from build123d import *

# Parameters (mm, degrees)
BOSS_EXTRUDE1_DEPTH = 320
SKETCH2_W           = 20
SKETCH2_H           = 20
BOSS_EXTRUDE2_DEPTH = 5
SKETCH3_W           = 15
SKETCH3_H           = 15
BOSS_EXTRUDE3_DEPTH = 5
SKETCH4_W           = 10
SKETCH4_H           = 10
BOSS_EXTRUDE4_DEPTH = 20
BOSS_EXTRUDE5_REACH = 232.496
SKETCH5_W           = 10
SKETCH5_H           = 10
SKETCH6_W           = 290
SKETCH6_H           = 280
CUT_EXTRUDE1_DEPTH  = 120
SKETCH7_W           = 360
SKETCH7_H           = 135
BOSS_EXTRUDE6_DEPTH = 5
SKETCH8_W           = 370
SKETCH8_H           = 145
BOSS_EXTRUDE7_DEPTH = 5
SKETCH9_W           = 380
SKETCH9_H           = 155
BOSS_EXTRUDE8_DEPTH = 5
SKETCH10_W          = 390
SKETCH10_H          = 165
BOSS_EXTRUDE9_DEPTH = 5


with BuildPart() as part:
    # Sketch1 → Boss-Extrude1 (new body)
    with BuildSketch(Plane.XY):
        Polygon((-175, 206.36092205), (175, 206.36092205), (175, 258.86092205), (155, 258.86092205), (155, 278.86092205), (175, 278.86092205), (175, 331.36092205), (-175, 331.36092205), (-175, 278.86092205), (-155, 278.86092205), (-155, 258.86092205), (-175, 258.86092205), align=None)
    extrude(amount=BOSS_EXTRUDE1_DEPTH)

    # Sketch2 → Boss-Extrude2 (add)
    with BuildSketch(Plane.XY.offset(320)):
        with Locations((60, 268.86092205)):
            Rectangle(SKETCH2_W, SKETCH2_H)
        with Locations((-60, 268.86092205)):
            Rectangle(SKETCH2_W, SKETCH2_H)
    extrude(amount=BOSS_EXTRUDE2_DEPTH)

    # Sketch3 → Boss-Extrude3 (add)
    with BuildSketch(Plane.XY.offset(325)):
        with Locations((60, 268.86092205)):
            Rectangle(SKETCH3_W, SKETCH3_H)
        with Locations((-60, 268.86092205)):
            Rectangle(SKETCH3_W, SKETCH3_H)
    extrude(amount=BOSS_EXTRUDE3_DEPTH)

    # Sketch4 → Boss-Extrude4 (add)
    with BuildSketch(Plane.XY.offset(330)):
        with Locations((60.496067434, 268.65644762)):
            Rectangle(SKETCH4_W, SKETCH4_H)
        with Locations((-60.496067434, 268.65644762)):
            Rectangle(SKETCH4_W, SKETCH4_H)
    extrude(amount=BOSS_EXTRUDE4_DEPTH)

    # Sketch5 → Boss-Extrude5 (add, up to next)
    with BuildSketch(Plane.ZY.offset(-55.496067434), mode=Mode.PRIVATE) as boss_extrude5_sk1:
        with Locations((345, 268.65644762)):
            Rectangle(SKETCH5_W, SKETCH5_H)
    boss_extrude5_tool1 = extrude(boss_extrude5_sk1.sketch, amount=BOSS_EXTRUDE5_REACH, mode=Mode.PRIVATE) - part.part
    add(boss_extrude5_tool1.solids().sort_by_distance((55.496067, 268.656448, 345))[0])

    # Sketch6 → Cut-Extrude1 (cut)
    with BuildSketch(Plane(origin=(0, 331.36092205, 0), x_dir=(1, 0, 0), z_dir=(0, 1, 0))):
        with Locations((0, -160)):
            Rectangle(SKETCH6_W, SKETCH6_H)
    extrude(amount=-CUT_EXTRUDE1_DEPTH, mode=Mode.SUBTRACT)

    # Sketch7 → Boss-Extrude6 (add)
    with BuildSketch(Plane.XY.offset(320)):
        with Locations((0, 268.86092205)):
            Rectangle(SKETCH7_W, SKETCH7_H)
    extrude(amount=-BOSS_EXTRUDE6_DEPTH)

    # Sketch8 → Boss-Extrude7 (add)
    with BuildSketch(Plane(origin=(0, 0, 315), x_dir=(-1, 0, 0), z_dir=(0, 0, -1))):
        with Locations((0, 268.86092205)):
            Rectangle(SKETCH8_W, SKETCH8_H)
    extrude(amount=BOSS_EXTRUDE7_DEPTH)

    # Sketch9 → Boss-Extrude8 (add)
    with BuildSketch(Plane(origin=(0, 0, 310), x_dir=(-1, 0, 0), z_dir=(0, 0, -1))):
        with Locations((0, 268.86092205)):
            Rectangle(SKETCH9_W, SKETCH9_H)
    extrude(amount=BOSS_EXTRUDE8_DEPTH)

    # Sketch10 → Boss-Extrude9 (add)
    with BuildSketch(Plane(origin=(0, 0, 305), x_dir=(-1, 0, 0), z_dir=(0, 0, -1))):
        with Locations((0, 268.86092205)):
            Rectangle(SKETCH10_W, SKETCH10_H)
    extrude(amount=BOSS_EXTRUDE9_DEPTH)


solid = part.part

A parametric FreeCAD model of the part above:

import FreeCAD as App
import Part
import Sketcher

doc = App.newDocument("Part")
body = doc.addObject("PartDesign::Body", "Body")

# Sketch on XY plane
sketch1 = body.newObject("Sketcher::SketchObject", "Sketch")
sketch1.AttachmentSupport = (doc.getObject("XY_Plane"), [""])
sketch1.MapMode = "FlatFace"
sketch1.addGeometry(Part.LineSegment(App.Vector(-175, 206.360922, 0), App.Vector(175, 206.360922, 0)), False)
sketch1.addGeometry(Part.LineSegment(App.Vector(175, 206.360922, 0), App.Vector(175, 258.860922, 0)), False)
sketch1.addGeometry(Part.LineSegment(App.Vector(175, 258.860922, 0), App.Vector(155, 258.860922, 0)), False)
sketch1.addGeometry(Part.LineSegment(App.Vector(155, 258.860922, 0), App.Vector(155, 278.860922, 0)), False)
sketch1.addGeometry(Part.LineSegment(App.Vector(155, 278.860922, 0), App.Vector(175, 278.860922, 0)), False)
sketch1.addGeometry(Part.LineSegment(App.Vector(175, 278.860922, 0), App.Vector(175, 331.360922, 0)), False)
sketch1.addGeometry(Part.LineSegment(App.Vector(175, 331.360922, 0), App.Vector(-175, 331.360922, 0)), False)
sketch1.addGeometry(Part.LineSegment(App.Vector(-175, 331.360922, 0), App.Vector(-175, 278.860922, 0)), False)
sketch1.addGeometry(Part.LineSegment(App.Vector(-175, 278.860922, 0), App.Vector(-155, 278.860922, 0)), False)
sketch1.addGeometry(Part.LineSegment(App.Vector(-155, 278.860922, 0), App.Vector(-155, 258.860922, 0)), False)
sketch1.addGeometry(Part.LineSegment(App.Vector(-155, 258.860922, 0), App.Vector(-175, 258.860922, 0)), False)
sketch1.addGeometry(Part.LineSegment(App.Vector(-175, 258.860922, 0), App.Vector(-175, 206.360922, 0)), False)
sketch1.addConstraint(Sketcher.Constraint("Coincident", 0, 2, 1, 1))
sketch1.addConstraint(Sketcher.Constraint("Coincident", 1, 2, 2, 1))
sketch1.addConstraint(Sketcher.Constraint("Coincident", 2, 2, 3, 1))
sketch1.addConstraint(Sketcher.Constraint("Coincident", 3, 2, 4, 1))
sketch1.addConstraint(Sketcher.Constraint("Coincident", 4, 2, 5, 1))
sketch1.addConstraint(Sketcher.Constraint("Coincident", 5, 2, 6, 1))
sketch1.addConstraint(Sketcher.Constraint("Coincident", 6, 2, 7, 1))
sketch1.addConstraint(Sketcher.Constraint("Coincident", 7, 2, 8, 1))
sketch1.addConstraint(Sketcher.Constraint("Coincident", 8, 2, 9, 1))
sketch1.addConstraint(Sketcher.Constraint("Coincident", 9, 2, 10, 1))
sketch1.addConstraint(Sketcher.Constraint("Coincident", 10, 2, 11, 1))
sketch1.addConstraint(Sketcher.Constraint("Coincident", 11, 2, 0, 1))
sketch1.addConstraint(Sketcher.Constraint("Horizontal", 0))
sketch1.addConstraint(Sketcher.Constraint("Vertical", 1))
sketch1.addConstraint(Sketcher.Constraint("Horizontal", 2))
sketch1.addConstraint(Sketcher.Constraint("Vertical", 3))
sketch1.addConstraint(Sketcher.Constraint("Horizontal", 4))
sketch1.addConstraint(Sketcher.Constraint("Vertical", 5))
sketch1.addConstraint(Sketcher.Constraint("Horizontal", 6))
sketch1.addConstraint(Sketcher.Constraint("Vertical", 7))
sketch1.addConstraint(Sketcher.Constraint("Horizontal", 8))
sketch1.addConstraint(Sketcher.Constraint("Vertical", 9))
sketch1.addConstraint(Sketcher.Constraint("Horizontal", 10))
sketch1.addConstraint(Sketcher.Constraint("Vertical", 11))
sketch1.addConstraint(Sketcher.Constraint("Symmetric", 4, 2, 7, 2, -2))
sketch1.addConstraint(Sketcher.Constraint("Symmetric", 2, 2, 9, 2, -2))
sketch1.addConstraint(Sketcher.Constraint("Vertical", 1, 2, 4, 2))
sketch1.addConstraint(Sketcher.Constraint("Vertical", 7, 2, 10, 2))
sketch1.addConstraint(Sketcher.Constraint("Equal", 10, 3))
sketch1.addConstraint(Sketcher.Constraint("Equal", 1, 5))
sketch1.addConstraint(Sketcher.Constraint("DistanceX", 0, 1, 0, 2, 350.0))
sketch1.addConstraint(Sketcher.Constraint("DistanceX", 2, 2, 2, 1, 20.0))
sketch1.addConstraint(Sketcher.Constraint("DistanceY", 1, 1, 1, 2, 52.5))
sketch1.addConstraint(Sketcher.Constraint("DistanceY", -1, 1, 0, 2, 206.360922))
pad1 = body.newObject("PartDesign::Pad", "Pad")
pad1.Profile = sketch1
pad1.Length = 320

# Sketch on XY plane
sketch2 = body.newObject("Sketcher::SketchObject", "Sketch001")
sketch2.AttachmentSupport = (doc.getObject("XY_Plane"), [""])
sketch2.MapMode = "FlatFace"
sketch2.AttachmentOffset = App.Placement(App.Vector(0, 0, 320), App.Rotation())
sketch2.addGeometry(Part.LineSegment(App.Vector(50, 278.860922, 0), App.Vector(50, 258.860922, 0)), False)
sketch2.addGeometry(Part.LineSegment(App.Vector(50, 258.860922, 0), App.Vector(70, 258.860922, 0)), False)
sketch2.addGeometry(Part.LineSegment(App.Vector(70, 258.860922, 0), App.Vector(70, 278.860922, 0)), False)
sketch2.addGeometry(Part.LineSegment(App.Vector(70, 278.860922, 0), App.Vector(50, 278.860922, 0)), False)
sketch2.addGeometry(Part.LineSegment(App.Vector(-70, 278.860922, 0), App.Vector(-70, 258.860922, 0)), False)
sketch2.addGeometry(Part.LineSegment(App.Vector(-70, 258.860922, 0), App.Vector(-50, 258.860922, 0)), False)
sketch2.addGeometry(Part.LineSegment(App.Vector(-50, 258.860922, 0), App.Vector(-50, 278.860922, 0)), False)
sketch2.addGeometry(Part.LineSegment(App.Vector(-50, 278.860922, 0), App.Vector(-70, 278.860922, 0)), False)
sketch2.addConstraint(Sketcher.Constraint("Coincident", 0, 2, 1, 1))
sketch2.addConstraint(Sketcher.Constraint("Coincident", 1, 2, 2, 1))
sketch2.addConstraint(Sketcher.Constraint("Coincident", 2, 2, 3, 1))
sketch2.addConstraint(Sketcher.Constraint("Coincident", 3, 2, 0, 1))
sketch2.addConstraint(Sketcher.Constraint("Coincident", 4, 2, 5, 1))
sketch2.addConstraint(Sketcher.Constraint("Coincident", 5, 2, 6, 1))
sketch2.addConstraint(Sketcher.Constraint("Coincident", 6, 2, 7, 1))
sketch2.addConstraint(Sketcher.Constraint("Coincident", 7, 2, 4, 1))
sketch2.addConstraint(Sketcher.Constraint("Vertical", 0))
sketch2.addConstraint(Sketcher.Constraint("Horizontal", 1))
sketch2.addConstraint(Sketcher.Constraint("Vertical", 2))
sketch2.addConstraint(Sketcher.Constraint("Horizontal", 3))
sketch2.addConstraint(Sketcher.Constraint("Vertical", 4))
sketch2.addConstraint(Sketcher.Constraint("Horizontal", 5))
sketch2.addConstraint(Sketcher.Constraint("Vertical", 6))
sketch2.addConstraint(Sketcher.Constraint("Horizontal", 7))
sketch2.addConstraint(Sketcher.Constraint("Symmetric", 1, 2, 4, 2, -2))
sketch2.addConstraint(Sketcher.Constraint("Symmetric", 3, 2, 6, 2, -2))
sketch2.addConstraint(Sketcher.Constraint("Equal", 7, 0))
sketch2.addConstraint(Sketcher.Constraint("DistanceX", 1, 1, 1, 2, 20.0))
sketch2.addConstraint(Sketcher.Constraint("DistanceX", -1, 1, 0, 2, 50.0))
sketch2.addConstraint(Sketcher.Constraint("DistanceY", -1, 1, 0, 2, 258.860922))
pad2 = body.newObject("PartDesign::Pad", "Pad001")
pad2.Profile = sketch2
pad2.Length = 5

# Sketch on XY plane
sketch3 = body.newObject("Sketcher::SketchObject", "Sketch002")
sketch3.AttachmentSupport = (doc.getObject("XY_Plane"), [""])
sketch3.MapMode = "FlatFace"
sketch3.AttachmentOffset = App.Placement(App.Vector(0, 0, 325), App.Rotation())
sketch3.addGeometry(Part.LineSegment(App.Vector(52.5, 276.360922, 0), App.Vector(52.5, 261.360922, 0)), False)
sketch3.addGeometry(Part.LineSegment(App.Vector(52.5, 261.360922, 0), App.Vector(67.5, 261.360922, 0)), False)
sketch3.addGeometry(Part.LineSegment(App.Vector(67.5, 261.360922, 0), App.Vector(67.5, 276.360922, 0)), False)
sketch3.addGeometry(Part.LineSegment(App.Vector(67.5, 276.360922, 0), App.Vector(52.5, 276.360922, 0)), False)
sketch3.addGeometry(Part.LineSegment(App.Vector(-67.5, 276.360922, 0), App.Vector(-67.5, 261.360922, 0)), False)
sketch3.addGeometry(Part.LineSegment(App.Vector(-67.5, 261.360922, 0), App.Vector(-52.5, 261.360922, 0)), False)
sketch3.addGeometry(Part.LineSegment(App.Vector(-52.5, 261.360922, 0), App.Vector(-52.5, 276.360922, 0)), False)
sketch3.addGeometry(Part.LineSegment(App.Vector(-52.5, 276.360922, 0), App.Vector(-67.5, 276.360922, 0)), False)
sketch3.addConstraint(Sketcher.Constraint("Coincident", 0, 2, 1, 1))
sketch3.addConstraint(Sketcher.Constraint("Coincident", 1, 2, 2, 1))
sketch3.addConstraint(Sketcher.Constraint("Coincident", 2, 2, 3, 1))
sketch3.addConstraint(Sketcher.Constraint("Coincident", 3, 2, 0, 1))
sketch3.addConstraint(Sketcher.Constraint("Coincident", 4, 2, 5, 1))
sketch3.addConstraint(Sketcher.Constraint("Coincident", 5, 2, 6, 1))
sketch3.addConstraint(Sketcher.Constraint("Coincident", 6, 2, 7, 1))
sketch3.addConstraint(Sketcher.Constraint("Coincident", 7, 2, 4, 1))
sketch3.addConstraint(Sketcher.Constraint("Vertical", 0))
sketch3.addConstraint(Sketcher.Constraint("Horizontal", 1))
sketch3.addConstraint(Sketcher.Constraint("Vertical", 2))
sketch3.addConstraint(Sketcher.Constraint("Horizontal", 3))
sketch3.addConstraint(Sketcher.Constraint("Vertical", 4))
sketch3.addConstraint(Sketcher.Constraint("Horizontal", 5))
sketch3.addConstraint(Sketcher.Constraint("Vertical", 6))
sketch3.addConstraint(Sketcher.Constraint("Horizontal", 7))
sketch3.addConstraint(Sketcher.Constraint("Symmetric", 1, 2, 4, 2, -2))
sketch3.addConstraint(Sketcher.Constraint("Symmetric", 3, 2, 6, 2, -2))
sketch3.addConstraint(Sketcher.Constraint("Equal", 7, 0))
sketch3.addConstraint(Sketcher.Constraint("DistanceX", 1, 1, 1, 2, 15.0))
sketch3.addConstraint(Sketcher.Constraint("DistanceX", 4, 2, 0, 2, 120.0))
sketch3.addConstraint(Sketcher.Constraint("DistanceY", -1, 1, 0, 2, 261.360922))
pad3 = body.newObject("PartDesign::Pad", "Pad002")
pad3.Profile = sketch3
pad3.Length = 5

# Sketch on XY plane
sketch4 = body.newObject("Sketcher::SketchObject", "Sketch003")
sketch4.AttachmentSupport = (doc.getObject("XY_Plane"), [""])
sketch4.MapMode = "FlatFace"
sketch4.AttachmentOffset = App.Placement(App.Vector(0, 0, 330), App.Rotation())
sketch4.addGeometry(Part.LineSegment(App.Vector(55.496067, 273.656448, 0), App.Vector(55.496067, 263.656448, 0)), False)
sketch4.addGeometry(Part.LineSegment(App.Vector(55.496067, 263.656448, 0), App.Vector(65.496067, 263.656448, 0)), False)
sketch4.addGeometry(Part.LineSegment(App.Vector(65.496067, 263.656448, 0), App.Vector(65.496067, 273.656448, 0)), False)
sketch4.addGeometry(Part.LineSegment(App.Vector(65.496067, 273.656448, 0), App.Vector(55.496067, 273.656448, 0)), False)
sketch4.addGeometry(Part.LineSegment(App.Vector(-65.496067, 273.656448, 0), App.Vector(-65.496067, 263.656448, 0)), False)
sketch4.addGeometry(Part.LineSegment(App.Vector(-65.496067, 263.656448, 0), App.Vector(-55.496067, 263.656448, 0)), False)
sketch4.addGeometry(Part.LineSegment(App.Vector(-55.496067, 263.656448, 0), App.Vector(-55.496067, 273.656448, 0)), False)
sketch4.addGeometry(Part.LineSegment(App.Vector(-55.496067, 273.656448, 0), App.Vector(-65.496067, 273.656448, 0)), False)
sketch4.addConstraint(Sketcher.Constraint("Coincident", 0, 2, 1, 1))
sketch4.addConstraint(Sketcher.Constraint("Coincident", 1, 2, 2, 1))
sketch4.addConstraint(Sketcher.Constraint("Coincident", 2, 2, 3, 1))
sketch4.addConstraint(Sketcher.Constraint("Coincident", 3, 2, 0, 1))
sketch4.addConstraint(Sketcher.Constraint("Coincident", 4, 2, 5, 1))
sketch4.addConstraint(Sketcher.Constraint("Coincident", 5, 2, 6, 1))
sketch4.addConstraint(Sketcher.Constraint("Coincident", 6, 2, 7, 1))
sketch4.addConstraint(Sketcher.Constraint("Coincident", 7, 2, 4, 1))
sketch4.addConstraint(Sketcher.Constraint("Vertical", 0))
sketch4.addConstraint(Sketcher.Constraint("Horizontal", 1))
sketch4.addConstraint(Sketcher.Constraint("Vertical", 2))
sketch4.addConstraint(Sketcher.Constraint("Horizontal", 3))
sketch4.addConstraint(Sketcher.Constraint("Vertical", 4))
sketch4.addConstraint(Sketcher.Constraint("Horizontal", 5))
sketch4.addConstraint(Sketcher.Constraint("Vertical", 6))
sketch4.addConstraint(Sketcher.Constraint("Horizontal", 7))
sketch4.addConstraint(Sketcher.Constraint("Symmetric", 1, 2, 4, 2, -2))
sketch4.addConstraint(Sketcher.Constraint("Symmetric", 3, 2, 6, 2, -2))
sketch4.addConstraint(Sketcher.Constraint("Equal", 7, 0))
sketch4.addConstraint(Sketcher.Constraint("DistanceX", 1, 1, 1, 2, 10.0))
sketch4.addConstraint(Sketcher.Constraint("DistanceX", -1, 1, 0, 2, 55.496067))
sketch4.addConstraint(Sketcher.Constraint("DistanceY", -1, 1, 0, 2, 263.656448))
pad4 = body.newObject("PartDesign::Pad", "Pad003")
pad4.Profile = sketch4
pad4.Length = 20

# Sketch on YZ plane
sketch5 = body.newObject("Sketcher::SketchObject", "Sketch004")
sketch5.AttachmentSupport = (doc.getObject("YZ_Plane"), [""])
sketch5.MapMode = "FlatFace"
sketch5.AttachmentOffset = App.Placement(App.Vector(0, 0, 55.496067), App.Rotation())
sketch5.addGeometry(Part.LineSegment(App.Vector(273.656448, 340, 0), App.Vector(263.656448, 340, 0)), False)
sketch5.addGeometry(Part.LineSegment(App.Vector(263.656448, 340, 0), App.Vector(263.656448, 350, 0)), False)
sketch5.addGeometry(Part.LineSegment(App.Vector(263.656448, 350, 0), App.Vector(273.656448, 350, 0)), False)
sketch5.addGeometry(Part.LineSegment(App.Vector(273.656448, 350, 0), App.Vector(273.656448, 340, 0)), False)
sketch5.addConstraint(Sketcher.Constraint("Coincident", 0, 2, 1, 1))
sketch5.addConstraint(Sketcher.Constraint("Coincident", 1, 2, 2, 1))
sketch5.addConstraint(Sketcher.Constraint("Coincident", 2, 2, 3, 1))
sketch5.addConstraint(Sketcher.Constraint("Coincident", 3, 2, 0, 1))
sketch5.addConstraint(Sketcher.Constraint("Horizontal", 0))
sketch5.addConstraint(Sketcher.Constraint("Vertical", 1))
sketch5.addConstraint(Sketcher.Constraint("Horizontal", 2))
sketch5.addConstraint(Sketcher.Constraint("Vertical", 3))
sketch5.addConstraint(Sketcher.Constraint("Equal", 2, 1))
sketch5.addConstraint(Sketcher.Constraint("DistanceX", 0, 2, 0, 1, 10.0))
sketch5.addConstraint(Sketcher.Constraint("DistanceY", -1, 1, 0, 2, 340.0))
sketch5.addConstraint(Sketcher.Constraint("DistanceX", -1, 1, 0, 2, 263.656448))
pad5 = body.newObject("PartDesign::Pad", "Pad004")
pad5.Profile = sketch5
pad5.Type = "UpToFirst"
pad5.Reversed = True

# Sketch on XZ plane
sketch6 = body.newObject("Sketcher::SketchObject", "Sketch005")
sketch6.AttachmentSupport = (doc.getObject("XZ_Plane"), [""])
sketch6.MapMode = "FlatFace"
sketch6.AttachmentOffset = App.Placement(App.Vector(0, 0, -331.360922), App.Rotation())
sketch6.addGeometry(Part.LineSegment(App.Vector(-145, 20, 0), App.Vector(-145, 300, 0)), False)
sketch6.addGeometry(Part.LineSegment(App.Vector(-145, 300, 0), App.Vector(145, 300, 0)), False)
sketch6.addGeometry(Part.LineSegment(App.Vector(145, 300, 0), App.Vector(145, 20, 0)), False)
sketch6.addGeometry(Part.LineSegment(App.Vector(145, 20, 0), App.Vector(-145, 20, 0)), False)
sketch6.addConstraint(Sketcher.Constraint("Coincident", 0, 2, 1, 1))
sketch6.addConstraint(Sketcher.Constraint("Coincident", 1, 2, 2, 1))
sketch6.addConstraint(Sketcher.Constraint("Coincident", 2, 2, 3, 1))
sketch6.addConstraint(Sketcher.Constraint("Coincident", 3, 2, 0, 1))
sketch6.addConstraint(Sketcher.Constraint("Vertical", 0))
sketch6.addConstraint(Sketcher.Constraint("Horizontal", 1))
sketch6.addConstraint(Sketcher.Constraint("Vertical", 2))
sketch6.addConstraint(Sketcher.Constraint("Horizontal", 3))
sketch6.addConstraint(Sketcher.Constraint("DistanceX", 1, 1, 1, 2, 290.0))
sketch6.addConstraint(Sketcher.Constraint("DistanceY", 0, 1, 0, 2, 280.0))
sketch6.addConstraint(Sketcher.Constraint("DistanceX", 0, 2, -1, 1, 145.0))
sketch6.addConstraint(Sketcher.Constraint("DistanceY", -1, 1, 0, 2, 300.0))
pocket1 = body.newObject("PartDesign::Pocket", "Pocket")
pocket1.Profile = sketch6
pocket1.Length = 120
pocket1.Reversed = True

# Sketch on XY plane
sketch7 = body.newObject("Sketcher::SketchObject", "Sketch006")
sketch7.AttachmentSupport = (doc.getObject("XY_Plane"), [""])
sketch7.MapMode = "FlatFace"
sketch7.AttachmentOffset = App.Placement(App.Vector(0, 0, 320), App.Rotation())
sketch7.addGeometry(Part.LineSegment(App.Vector(-180, 336.360922, 0), App.Vector(-180, 201.360922, 0)), False)
sketch7.addGeometry(Part.LineSegment(App.Vector(-180, 201.360922, 0), App.Vector(180, 201.360922, 0)), False)
sketch7.addGeometry(Part.LineSegment(App.Vector(180, 201.360922, 0), App.Vector(180, 336.360922, 0)), False)
sketch7.addGeometry(Part.LineSegment(App.Vector(180, 336.360922, 0), App.Vector(-180, 336.360922, 0)), False)
sketch7.addConstraint(Sketcher.Constraint("Coincident", 0, 2, 1, 1))
sketch7.addConstraint(Sketcher.Constraint("Coincident", 1, 2, 2, 1))
sketch7.addConstraint(Sketcher.Constraint("Coincident", 2, 2, 3, 1))
sketch7.addConstraint(Sketcher.Constraint("Coincident", 3, 2, 0, 1))
sketch7.addConstraint(Sketcher.Constraint("Vertical", 0))
sketch7.addConstraint(Sketcher.Constraint("Horizontal", 1))
sketch7.addConstraint(Sketcher.Constraint("Vertical", 2))
sketch7.addConstraint(Sketcher.Constraint("Horizontal", 3))
sketch7.addConstraint(Sketcher.Constraint("DistanceX", 1, 1, 1, 2, 360.0))
sketch7.addConstraint(Sketcher.Constraint("DistanceY", 0, 2, 0, 1, 135.0))
sketch7.addConstraint(Sketcher.Constraint("DistanceX", 0, 2, -1, 1, 180.0))
sketch7.addConstraint(Sketcher.Constraint("DistanceY", -1, 1, 0, 2, 201.360922))
pad6 = body.newObject("PartDesign::Pad", "Pad005")
pad6.Profile = sketch7
pad6.Length = 5
pad6.Reversed = True

# Sketch on XY plane
sketch8 = body.newObject("Sketcher::SketchObject", "Sketch007")
sketch8.AttachmentSupport = (doc.getObject("XY_Plane"), [""])
sketch8.MapMode = "FlatFace"
sketch8.AttachmentOffset = App.Placement(App.Vector(0, 0, 315), App.Rotation())
sketch8.addGeometry(Part.LineSegment(App.Vector(185, 341.360922, 0), App.Vector(185, 196.360922, 0)), False)
sketch8.addGeometry(Part.LineSegment(App.Vector(185, 196.360922, 0), App.Vector(-185, 196.360922, 0)), False)
sketch8.addGeometry(Part.LineSegment(App.Vector(-185, 196.360922, 0), App.Vector(-185, 341.360922, 0)), False)
sketch8.addGeometry(Part.LineSegment(App.Vector(-185, 341.360922, 0), App.Vector(185, 341.360922, 0)), False)
sketch8.addConstraint(Sketcher.Constraint("Coincident", 0, 2, 1, 1))
sketch8.addConstraint(Sketcher.Constraint("Coincident", 1, 2, 2, 1))
sketch8.addConstraint(Sketcher.Constraint("Coincident", 2, 2, 3, 1))
sketch8.addConstraint(Sketcher.Constraint("Coincident", 3, 2, 0, 1))
sketch8.addConstraint(Sketcher.Constraint("Vertical", 0))
sketch8.addConstraint(Sketcher.Constraint("Horizontal", 1))
sketch8.addConstraint(Sketcher.Constraint("Vertical", 2))
sketch8.addConstraint(Sketcher.Constraint("Horizontal", 3))
sketch8.addConstraint(Sketcher.Constraint("DistanceX", 1, 2, 1, 1, 370.0))
sketch8.addConstraint(Sketcher.Constraint("DistanceY", 0, 2, 0, 1, 145.0))
sketch8.addConstraint(Sketcher.Constraint("DistanceX", -1, 1, 0, 2, 185.0))
sketch8.addConstraint(Sketcher.Constraint("DistanceY", -1, 1, 0, 2, 196.360922))
pad7 = body.newObject("PartDesign::Pad", "Pad006")
pad7.Profile = sketch8
pad7.Length = 5
pad7.Reversed = True

# Sketch on XY plane
sketch9 = body.newObject("Sketcher::SketchObject", "Sketch008")
sketch9.AttachmentSupport = (doc.getObject("XY_Plane"), [""])
sketch9.MapMode = "FlatFace"
sketch9.AttachmentOffset = App.Placement(App.Vector(0, 0, 310), App.Rotation())
sketch9.addGeometry(Part.LineSegment(App.Vector(190, 346.360922, 0), App.Vector(190, 191.360922, 0)), False)
sketch9.addGeometry(Part.LineSegment(App.Vector(190, 191.360922, 0), App.Vector(-190, 191.360922, 0)), False)
sketch9.addGeometry(Part.LineSegment(App.Vector(-190, 191.360922, 0), App.Vector(-190, 346.360922, 0)), False)
sketch9.addGeometry(Part.LineSegment(App.Vector(-190, 346.360922, 0), App.Vector(190, 346.360922, 0)), False)
sketch9.addConstraint(Sketcher.Constraint("Coincident", 0, 2, 1, 1))
sketch9.addConstraint(Sketcher.Constraint("Coincident", 1, 2, 2, 1))
sketch9.addConstraint(Sketcher.Constraint("Coincident", 2, 2, 3, 1))
sketch9.addConstraint(Sketcher.Constraint("Coincident", 3, 2, 0, 1))
sketch9.addConstraint(Sketcher.Constraint("Vertical", 0))
sketch9.addConstraint(Sketcher.Constraint("Horizontal", 1))
sketch9.addConstraint(Sketcher.Constraint("Vertical", 2))
sketch9.addConstraint(Sketcher.Constraint("Horizontal", 3))
sketch9.addConstraint(Sketcher.Constraint("DistanceX", 1, 2, 1, 1, 380.0))
sketch9.addConstraint(Sketcher.Constraint("DistanceY", 0, 2, 0, 1, 155.0))
sketch9.addConstraint(Sketcher.Constraint("DistanceX", -1, 1, 0, 2, 190.0))
sketch9.addConstraint(Sketcher.Constraint("DistanceY", -1, 1, 0, 2, 191.360922))
pad8 = body.newObject("PartDesign::Pad", "Pad007")
pad8.Profile = sketch9
pad8.Length = 5
pad8.Reversed = True

# Sketch on XY plane
sketch10 = body.newObject("Sketcher::SketchObject", "Sketch009")
sketch10.AttachmentSupport = (doc.getObject("XY_Plane"), [""])
sketch10.MapMode = "FlatFace"
sketch10.AttachmentOffset = App.Placement(App.Vector(0, 0, 305), App.Rotation())
sketch10.addGeometry(Part.LineSegment(App.Vector(195, 351.360922, 0), App.Vector(195, 186.360922, 0)), False)
sketch10.addGeometry(Part.LineSegment(App.Vector(195, 186.360922, 0), App.Vector(-195, 186.360922, 0)), False)
sketch10.addGeometry(Part.LineSegment(App.Vector(-195, 186.360922, 0), App.Vector(-195, 351.360922, 0)), False)
sketch10.addGeometry(Part.LineSegment(App.Vector(-195, 351.360922, 0), App.Vector(195, 351.360922, 0)), False)
sketch10.addConstraint(Sketcher.Constraint("Coincident", 0, 2, 1, 1))
sketch10.addConstraint(Sketcher.Constraint("Coincident", 1, 2, 2, 1))
sketch10.addConstraint(Sketcher.Constraint("Coincident", 2, 2, 3, 1))
sketch10.addConstraint(Sketcher.Constraint("Coincident", 3, 2, 0, 1))
sketch10.addConstraint(Sketcher.Constraint("Vertical", 0))
sketch10.addConstraint(Sketcher.Constraint("Horizontal", 1))
sketch10.addConstraint(Sketcher.Constraint("Vertical", 2))
sketch10.addConstraint(Sketcher.Constraint("Horizontal", 3))
sketch10.addConstraint(Sketcher.Constraint("DistanceX", 1, 2, 1, 1, 390.0))
sketch10.addConstraint(Sketcher.Constraint("DistanceY", 0, 2, 0, 1, 165.0))
sketch10.addConstraint(Sketcher.Constraint("DistanceX", -1, 1, 0, 2, 195.0))
sketch10.addConstraint(Sketcher.Constraint("DistanceY", -1, 1, 0, 2, 186.360922))
pad9 = body.newObject("PartDesign::Pad", "Pad008")
pad9.Profile = sketch10
pad9.Length = 5
pad9.Reversed = True

doc.recompute()
